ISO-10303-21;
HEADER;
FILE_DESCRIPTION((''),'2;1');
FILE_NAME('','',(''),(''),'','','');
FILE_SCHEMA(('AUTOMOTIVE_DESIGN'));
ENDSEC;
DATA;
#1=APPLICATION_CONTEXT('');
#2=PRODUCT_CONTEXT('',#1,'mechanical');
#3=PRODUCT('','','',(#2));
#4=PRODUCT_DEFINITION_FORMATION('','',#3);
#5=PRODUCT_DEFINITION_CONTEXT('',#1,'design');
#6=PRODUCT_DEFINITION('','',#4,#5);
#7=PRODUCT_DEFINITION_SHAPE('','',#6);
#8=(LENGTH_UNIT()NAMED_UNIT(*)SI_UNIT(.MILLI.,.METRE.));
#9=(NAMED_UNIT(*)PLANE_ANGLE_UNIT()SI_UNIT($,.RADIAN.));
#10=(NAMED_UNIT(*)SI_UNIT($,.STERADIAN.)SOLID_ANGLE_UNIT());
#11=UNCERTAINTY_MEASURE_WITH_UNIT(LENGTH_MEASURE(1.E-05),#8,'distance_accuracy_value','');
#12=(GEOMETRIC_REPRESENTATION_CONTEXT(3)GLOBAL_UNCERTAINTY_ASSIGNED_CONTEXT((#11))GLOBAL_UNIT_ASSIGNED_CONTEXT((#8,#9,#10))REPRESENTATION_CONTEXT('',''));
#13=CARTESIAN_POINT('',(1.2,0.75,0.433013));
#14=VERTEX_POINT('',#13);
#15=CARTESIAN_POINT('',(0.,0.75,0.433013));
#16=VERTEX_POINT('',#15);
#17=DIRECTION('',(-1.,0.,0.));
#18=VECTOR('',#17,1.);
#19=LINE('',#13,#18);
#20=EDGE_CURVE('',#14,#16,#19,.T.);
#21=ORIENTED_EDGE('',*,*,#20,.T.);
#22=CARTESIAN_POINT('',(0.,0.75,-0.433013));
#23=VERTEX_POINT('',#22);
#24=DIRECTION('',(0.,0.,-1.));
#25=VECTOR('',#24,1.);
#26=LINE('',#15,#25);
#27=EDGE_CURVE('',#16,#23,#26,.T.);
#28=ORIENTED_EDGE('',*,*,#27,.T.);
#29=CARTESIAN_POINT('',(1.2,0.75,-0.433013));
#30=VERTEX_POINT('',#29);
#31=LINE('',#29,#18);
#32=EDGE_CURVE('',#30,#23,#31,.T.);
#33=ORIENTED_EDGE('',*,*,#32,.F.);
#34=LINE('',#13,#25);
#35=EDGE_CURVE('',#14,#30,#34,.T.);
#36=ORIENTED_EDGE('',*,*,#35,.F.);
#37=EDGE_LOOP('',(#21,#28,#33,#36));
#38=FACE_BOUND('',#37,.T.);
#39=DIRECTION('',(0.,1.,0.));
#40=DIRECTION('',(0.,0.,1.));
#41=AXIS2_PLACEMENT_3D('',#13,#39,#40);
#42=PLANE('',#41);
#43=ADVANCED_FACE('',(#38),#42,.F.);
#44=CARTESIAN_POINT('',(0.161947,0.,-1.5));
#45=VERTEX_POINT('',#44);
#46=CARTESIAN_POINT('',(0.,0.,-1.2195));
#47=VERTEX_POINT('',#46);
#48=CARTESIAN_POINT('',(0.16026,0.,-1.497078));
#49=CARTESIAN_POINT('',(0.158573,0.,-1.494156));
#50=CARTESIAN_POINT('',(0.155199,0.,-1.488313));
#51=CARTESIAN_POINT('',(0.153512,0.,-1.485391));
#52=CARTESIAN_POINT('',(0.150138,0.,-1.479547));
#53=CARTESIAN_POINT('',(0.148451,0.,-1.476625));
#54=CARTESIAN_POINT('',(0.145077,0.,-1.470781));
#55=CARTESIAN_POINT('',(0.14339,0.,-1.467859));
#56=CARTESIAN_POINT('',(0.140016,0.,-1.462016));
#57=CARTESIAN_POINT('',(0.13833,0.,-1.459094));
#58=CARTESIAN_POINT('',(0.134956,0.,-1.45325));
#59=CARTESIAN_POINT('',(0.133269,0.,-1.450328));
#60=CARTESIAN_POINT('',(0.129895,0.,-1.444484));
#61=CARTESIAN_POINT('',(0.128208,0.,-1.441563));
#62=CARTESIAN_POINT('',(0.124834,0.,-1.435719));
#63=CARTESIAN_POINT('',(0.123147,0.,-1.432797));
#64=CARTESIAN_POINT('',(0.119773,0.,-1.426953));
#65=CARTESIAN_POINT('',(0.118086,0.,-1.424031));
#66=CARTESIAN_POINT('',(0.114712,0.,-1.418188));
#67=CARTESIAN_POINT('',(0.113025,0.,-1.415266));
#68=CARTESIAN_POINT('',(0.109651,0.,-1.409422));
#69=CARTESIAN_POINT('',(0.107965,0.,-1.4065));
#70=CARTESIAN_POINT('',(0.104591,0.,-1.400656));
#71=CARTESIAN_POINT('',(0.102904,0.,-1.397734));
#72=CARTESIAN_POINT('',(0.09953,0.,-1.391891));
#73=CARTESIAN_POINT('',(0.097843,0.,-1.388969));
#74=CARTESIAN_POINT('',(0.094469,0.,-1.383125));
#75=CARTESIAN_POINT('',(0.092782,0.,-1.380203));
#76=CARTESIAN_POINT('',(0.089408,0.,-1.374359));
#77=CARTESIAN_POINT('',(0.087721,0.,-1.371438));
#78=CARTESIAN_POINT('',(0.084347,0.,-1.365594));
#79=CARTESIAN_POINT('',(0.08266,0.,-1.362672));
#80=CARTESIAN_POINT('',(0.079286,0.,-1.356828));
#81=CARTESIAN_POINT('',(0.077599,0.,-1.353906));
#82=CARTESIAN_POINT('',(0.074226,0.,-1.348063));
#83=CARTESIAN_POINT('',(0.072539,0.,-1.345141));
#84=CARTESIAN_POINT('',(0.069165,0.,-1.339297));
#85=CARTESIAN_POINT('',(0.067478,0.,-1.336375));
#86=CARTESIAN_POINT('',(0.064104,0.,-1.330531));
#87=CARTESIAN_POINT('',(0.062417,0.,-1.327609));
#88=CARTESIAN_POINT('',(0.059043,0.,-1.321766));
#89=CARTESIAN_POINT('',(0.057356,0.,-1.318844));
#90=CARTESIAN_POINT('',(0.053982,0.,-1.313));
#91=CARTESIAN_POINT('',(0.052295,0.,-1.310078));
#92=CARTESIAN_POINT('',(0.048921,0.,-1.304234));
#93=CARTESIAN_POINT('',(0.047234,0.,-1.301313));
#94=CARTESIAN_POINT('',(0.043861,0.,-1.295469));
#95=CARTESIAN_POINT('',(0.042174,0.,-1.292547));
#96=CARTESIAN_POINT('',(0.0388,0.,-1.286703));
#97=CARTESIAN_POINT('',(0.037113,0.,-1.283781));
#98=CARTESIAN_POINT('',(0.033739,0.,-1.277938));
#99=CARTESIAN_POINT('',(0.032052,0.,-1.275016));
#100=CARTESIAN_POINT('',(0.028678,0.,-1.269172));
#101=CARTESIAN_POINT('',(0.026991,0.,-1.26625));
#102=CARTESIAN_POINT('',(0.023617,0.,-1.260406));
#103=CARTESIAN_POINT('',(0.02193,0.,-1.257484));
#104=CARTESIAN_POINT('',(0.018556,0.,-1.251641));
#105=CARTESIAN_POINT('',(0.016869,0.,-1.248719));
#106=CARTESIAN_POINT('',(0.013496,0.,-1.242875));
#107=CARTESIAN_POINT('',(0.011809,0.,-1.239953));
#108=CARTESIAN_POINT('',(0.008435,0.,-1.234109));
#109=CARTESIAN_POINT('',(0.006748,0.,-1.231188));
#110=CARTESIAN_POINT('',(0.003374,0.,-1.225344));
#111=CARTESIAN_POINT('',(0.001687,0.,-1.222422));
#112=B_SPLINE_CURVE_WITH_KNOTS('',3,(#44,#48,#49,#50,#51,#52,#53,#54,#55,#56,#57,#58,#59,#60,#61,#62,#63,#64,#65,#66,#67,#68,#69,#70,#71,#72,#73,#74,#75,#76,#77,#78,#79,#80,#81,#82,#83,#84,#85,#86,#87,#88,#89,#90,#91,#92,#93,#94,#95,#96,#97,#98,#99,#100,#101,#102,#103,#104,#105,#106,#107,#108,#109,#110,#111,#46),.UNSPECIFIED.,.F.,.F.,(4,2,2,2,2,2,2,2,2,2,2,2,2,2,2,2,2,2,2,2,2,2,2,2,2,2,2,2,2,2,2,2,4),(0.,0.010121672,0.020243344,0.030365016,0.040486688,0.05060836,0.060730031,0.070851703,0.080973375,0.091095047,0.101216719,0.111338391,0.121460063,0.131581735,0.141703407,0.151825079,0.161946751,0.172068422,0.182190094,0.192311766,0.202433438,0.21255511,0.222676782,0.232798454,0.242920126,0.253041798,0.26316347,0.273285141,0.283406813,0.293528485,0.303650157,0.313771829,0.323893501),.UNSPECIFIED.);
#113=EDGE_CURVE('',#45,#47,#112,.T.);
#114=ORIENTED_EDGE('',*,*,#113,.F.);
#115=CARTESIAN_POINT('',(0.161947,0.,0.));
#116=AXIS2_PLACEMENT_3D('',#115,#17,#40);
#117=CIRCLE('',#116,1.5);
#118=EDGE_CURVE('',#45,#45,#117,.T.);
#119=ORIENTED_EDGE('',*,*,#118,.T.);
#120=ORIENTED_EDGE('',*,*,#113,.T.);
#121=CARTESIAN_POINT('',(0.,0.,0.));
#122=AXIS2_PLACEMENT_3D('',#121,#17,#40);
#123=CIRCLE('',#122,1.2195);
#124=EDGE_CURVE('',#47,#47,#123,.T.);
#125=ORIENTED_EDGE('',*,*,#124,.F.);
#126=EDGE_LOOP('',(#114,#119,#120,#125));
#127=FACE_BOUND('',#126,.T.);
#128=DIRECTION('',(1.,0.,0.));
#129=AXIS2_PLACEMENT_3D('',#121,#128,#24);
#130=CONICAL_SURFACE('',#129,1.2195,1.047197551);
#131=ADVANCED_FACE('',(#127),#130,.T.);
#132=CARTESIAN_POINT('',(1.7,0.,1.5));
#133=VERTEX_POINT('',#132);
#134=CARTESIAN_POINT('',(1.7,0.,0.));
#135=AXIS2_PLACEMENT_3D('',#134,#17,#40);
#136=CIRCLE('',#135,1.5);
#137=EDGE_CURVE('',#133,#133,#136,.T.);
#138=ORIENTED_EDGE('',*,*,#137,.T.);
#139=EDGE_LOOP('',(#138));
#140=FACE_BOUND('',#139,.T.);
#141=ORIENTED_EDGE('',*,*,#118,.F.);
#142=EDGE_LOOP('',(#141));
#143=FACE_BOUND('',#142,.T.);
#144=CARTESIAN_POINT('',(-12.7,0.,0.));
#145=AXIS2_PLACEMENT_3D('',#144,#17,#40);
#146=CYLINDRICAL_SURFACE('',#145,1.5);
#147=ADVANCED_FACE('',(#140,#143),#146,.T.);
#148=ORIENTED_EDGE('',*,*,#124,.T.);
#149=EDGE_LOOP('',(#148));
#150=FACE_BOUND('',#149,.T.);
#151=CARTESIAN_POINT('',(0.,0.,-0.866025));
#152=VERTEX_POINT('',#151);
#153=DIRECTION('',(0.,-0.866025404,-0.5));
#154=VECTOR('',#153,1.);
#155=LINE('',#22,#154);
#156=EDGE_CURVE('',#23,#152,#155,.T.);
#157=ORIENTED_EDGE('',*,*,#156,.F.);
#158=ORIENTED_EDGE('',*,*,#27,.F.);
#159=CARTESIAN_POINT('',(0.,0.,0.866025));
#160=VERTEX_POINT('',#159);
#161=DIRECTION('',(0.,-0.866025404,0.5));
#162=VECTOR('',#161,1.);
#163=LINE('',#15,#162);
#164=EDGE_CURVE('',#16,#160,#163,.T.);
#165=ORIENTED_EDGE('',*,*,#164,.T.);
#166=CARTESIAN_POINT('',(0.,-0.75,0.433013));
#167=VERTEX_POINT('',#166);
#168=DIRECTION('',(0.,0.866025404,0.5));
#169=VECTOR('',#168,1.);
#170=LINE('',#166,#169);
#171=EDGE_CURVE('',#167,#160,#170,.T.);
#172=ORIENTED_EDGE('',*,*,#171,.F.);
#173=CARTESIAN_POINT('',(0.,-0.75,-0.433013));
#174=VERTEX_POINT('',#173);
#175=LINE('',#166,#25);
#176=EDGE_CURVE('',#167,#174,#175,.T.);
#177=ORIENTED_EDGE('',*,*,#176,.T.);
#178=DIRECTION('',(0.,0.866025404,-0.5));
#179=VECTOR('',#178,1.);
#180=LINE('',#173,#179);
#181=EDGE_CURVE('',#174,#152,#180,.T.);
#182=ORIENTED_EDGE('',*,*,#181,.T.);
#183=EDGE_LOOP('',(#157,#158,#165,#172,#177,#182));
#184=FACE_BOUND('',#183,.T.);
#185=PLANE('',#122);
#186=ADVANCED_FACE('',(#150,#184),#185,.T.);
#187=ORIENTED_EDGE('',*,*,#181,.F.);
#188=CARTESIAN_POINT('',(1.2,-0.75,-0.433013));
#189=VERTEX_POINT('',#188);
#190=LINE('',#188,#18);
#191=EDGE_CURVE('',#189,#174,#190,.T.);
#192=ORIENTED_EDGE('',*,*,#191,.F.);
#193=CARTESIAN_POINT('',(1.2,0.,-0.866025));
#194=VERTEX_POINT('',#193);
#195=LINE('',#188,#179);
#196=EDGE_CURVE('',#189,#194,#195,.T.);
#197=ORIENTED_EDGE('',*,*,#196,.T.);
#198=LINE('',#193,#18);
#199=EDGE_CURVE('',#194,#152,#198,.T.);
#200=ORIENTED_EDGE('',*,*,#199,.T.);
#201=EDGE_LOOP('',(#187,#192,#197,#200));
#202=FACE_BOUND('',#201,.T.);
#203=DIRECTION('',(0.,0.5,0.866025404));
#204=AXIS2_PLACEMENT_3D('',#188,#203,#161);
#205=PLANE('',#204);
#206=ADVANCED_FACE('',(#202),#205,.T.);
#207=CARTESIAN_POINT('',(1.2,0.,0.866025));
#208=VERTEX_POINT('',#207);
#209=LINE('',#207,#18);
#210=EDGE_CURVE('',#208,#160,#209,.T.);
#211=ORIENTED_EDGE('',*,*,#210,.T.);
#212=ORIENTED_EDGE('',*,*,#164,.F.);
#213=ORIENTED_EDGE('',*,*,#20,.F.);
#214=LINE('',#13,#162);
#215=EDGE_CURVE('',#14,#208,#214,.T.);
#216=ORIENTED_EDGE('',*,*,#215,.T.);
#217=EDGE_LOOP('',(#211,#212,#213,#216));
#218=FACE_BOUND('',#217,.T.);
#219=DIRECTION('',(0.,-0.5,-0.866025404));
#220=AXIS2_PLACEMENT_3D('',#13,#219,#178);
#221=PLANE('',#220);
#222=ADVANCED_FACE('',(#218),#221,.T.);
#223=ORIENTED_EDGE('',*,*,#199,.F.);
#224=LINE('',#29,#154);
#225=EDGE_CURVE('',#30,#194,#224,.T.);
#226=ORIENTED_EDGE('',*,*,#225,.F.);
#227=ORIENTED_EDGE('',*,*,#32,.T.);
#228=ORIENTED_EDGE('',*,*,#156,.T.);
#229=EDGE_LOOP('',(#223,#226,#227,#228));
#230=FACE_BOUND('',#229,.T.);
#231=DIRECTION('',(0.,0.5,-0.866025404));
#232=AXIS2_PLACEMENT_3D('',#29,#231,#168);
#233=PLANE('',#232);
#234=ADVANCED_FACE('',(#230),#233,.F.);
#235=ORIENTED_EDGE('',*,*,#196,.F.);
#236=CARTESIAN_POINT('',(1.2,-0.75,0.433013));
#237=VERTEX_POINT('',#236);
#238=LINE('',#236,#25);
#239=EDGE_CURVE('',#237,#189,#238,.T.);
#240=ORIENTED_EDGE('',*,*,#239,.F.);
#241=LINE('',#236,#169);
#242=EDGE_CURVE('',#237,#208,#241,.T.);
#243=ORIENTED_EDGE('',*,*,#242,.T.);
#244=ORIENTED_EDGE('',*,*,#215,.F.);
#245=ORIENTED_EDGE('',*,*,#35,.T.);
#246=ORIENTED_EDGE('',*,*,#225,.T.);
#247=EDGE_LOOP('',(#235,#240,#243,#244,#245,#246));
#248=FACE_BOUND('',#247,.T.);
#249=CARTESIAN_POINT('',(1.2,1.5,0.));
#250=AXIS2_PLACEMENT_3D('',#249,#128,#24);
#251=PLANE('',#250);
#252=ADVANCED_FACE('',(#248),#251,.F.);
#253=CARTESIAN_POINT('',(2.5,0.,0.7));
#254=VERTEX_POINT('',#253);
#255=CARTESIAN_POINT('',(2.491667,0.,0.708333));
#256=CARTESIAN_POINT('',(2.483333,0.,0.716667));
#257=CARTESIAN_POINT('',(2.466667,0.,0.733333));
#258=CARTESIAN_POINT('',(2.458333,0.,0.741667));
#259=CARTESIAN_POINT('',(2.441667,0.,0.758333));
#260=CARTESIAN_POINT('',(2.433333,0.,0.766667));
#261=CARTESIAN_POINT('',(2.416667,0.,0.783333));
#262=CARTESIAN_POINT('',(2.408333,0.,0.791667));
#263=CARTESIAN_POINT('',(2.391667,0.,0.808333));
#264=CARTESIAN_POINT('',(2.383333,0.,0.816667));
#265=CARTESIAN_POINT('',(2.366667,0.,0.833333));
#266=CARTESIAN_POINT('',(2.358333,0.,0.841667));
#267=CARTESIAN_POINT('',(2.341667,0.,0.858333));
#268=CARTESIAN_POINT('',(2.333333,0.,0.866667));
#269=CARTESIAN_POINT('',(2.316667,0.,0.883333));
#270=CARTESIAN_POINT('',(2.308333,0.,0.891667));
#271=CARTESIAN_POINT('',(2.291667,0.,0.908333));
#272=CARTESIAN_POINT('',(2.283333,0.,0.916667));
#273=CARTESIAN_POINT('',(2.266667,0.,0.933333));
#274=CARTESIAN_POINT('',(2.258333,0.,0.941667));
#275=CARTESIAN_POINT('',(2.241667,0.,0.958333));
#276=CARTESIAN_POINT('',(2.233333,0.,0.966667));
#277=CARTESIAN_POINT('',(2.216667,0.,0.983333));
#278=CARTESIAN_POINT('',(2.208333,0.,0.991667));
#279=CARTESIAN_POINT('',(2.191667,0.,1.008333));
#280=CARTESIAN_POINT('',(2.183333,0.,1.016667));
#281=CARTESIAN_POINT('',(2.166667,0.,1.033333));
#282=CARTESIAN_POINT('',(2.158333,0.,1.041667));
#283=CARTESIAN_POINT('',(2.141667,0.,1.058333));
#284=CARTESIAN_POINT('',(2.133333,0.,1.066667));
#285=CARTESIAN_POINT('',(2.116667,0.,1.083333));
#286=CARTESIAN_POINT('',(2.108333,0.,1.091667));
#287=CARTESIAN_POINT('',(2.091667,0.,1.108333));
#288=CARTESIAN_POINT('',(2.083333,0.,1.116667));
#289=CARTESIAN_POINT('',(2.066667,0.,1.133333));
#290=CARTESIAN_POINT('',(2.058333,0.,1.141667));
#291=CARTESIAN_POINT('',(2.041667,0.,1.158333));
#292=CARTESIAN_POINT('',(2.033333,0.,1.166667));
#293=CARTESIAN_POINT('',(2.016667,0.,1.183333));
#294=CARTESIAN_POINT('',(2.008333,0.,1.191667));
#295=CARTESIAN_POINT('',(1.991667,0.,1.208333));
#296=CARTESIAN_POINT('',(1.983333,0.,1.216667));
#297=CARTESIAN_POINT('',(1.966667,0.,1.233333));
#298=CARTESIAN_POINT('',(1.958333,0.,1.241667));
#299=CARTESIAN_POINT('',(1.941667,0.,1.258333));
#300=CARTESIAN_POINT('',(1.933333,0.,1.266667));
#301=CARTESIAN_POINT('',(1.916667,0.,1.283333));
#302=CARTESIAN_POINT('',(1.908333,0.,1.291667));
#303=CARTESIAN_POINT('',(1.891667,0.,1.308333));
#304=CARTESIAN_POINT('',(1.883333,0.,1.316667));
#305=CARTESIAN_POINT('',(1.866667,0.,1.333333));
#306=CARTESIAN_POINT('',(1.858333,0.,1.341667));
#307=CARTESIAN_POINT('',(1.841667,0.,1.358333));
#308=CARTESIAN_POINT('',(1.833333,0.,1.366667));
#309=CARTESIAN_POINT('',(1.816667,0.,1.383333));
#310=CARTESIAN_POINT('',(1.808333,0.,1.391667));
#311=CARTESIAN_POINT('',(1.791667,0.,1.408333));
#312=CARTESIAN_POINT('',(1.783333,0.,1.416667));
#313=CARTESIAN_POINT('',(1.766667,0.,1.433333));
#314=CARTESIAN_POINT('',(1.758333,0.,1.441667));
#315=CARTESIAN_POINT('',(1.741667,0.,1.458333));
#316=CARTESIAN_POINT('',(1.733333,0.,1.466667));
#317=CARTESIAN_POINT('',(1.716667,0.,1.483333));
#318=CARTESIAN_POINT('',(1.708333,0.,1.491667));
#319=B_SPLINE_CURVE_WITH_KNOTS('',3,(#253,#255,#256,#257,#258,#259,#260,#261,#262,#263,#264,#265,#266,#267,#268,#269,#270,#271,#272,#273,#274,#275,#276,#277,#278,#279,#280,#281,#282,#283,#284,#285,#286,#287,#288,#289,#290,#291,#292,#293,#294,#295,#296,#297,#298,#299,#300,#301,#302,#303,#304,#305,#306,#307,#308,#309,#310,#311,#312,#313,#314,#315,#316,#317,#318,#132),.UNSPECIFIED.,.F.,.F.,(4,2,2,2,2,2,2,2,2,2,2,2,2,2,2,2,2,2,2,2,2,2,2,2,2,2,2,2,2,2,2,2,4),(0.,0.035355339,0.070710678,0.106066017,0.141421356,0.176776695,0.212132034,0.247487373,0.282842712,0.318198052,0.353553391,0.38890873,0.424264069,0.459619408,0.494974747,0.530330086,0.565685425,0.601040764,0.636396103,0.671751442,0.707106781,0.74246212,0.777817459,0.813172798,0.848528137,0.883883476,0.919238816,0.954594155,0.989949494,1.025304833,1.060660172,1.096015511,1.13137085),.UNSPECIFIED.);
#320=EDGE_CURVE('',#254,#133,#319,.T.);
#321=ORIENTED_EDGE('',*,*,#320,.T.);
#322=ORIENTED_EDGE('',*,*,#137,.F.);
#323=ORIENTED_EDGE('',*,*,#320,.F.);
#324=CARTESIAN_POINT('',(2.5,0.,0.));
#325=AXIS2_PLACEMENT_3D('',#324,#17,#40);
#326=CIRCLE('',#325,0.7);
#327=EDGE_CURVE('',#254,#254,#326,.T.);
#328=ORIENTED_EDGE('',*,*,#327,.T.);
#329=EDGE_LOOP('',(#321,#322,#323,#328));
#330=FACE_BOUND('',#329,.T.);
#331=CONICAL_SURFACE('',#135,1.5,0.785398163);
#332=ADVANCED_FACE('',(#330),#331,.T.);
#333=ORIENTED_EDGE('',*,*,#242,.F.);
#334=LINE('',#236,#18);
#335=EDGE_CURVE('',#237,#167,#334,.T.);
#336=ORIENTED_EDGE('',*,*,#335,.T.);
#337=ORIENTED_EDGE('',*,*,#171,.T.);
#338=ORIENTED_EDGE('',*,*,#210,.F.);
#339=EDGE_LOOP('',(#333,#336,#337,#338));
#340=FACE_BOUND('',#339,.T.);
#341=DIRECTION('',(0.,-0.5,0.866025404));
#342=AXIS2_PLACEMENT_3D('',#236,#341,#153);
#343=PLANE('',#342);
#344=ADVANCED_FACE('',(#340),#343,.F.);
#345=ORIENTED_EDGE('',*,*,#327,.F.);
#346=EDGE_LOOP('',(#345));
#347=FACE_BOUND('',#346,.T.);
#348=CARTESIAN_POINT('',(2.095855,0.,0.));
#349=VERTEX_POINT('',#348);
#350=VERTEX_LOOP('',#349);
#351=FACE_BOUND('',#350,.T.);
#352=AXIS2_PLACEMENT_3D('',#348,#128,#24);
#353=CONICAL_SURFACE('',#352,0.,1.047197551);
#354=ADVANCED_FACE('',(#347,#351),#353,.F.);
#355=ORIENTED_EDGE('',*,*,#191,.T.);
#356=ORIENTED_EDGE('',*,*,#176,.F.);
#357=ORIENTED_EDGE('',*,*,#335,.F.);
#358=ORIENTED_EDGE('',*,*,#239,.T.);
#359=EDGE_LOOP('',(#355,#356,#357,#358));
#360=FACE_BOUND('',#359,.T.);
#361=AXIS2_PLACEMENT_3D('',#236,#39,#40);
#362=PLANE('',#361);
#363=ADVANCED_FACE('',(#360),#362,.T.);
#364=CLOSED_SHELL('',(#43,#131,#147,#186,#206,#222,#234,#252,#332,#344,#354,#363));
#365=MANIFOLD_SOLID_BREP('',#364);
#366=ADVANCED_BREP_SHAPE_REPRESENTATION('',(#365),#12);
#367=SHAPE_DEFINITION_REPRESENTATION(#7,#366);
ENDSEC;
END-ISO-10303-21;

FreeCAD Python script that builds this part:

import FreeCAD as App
import Part
import Sketcher
from FreeCAD import Vector
Q = App.Units.Quantity

doc = App.newDocument("Part")
params = doc.addObject("Spreadsheet::Sheet", "Params")
for row, (alias, value) in enumerate([
    ("revolution_angle", "360 deg"),
    ("pocket1_length", "1.2 mm"),
], start=1):
    params.set(f"A{row}", alias)
    params.set(f"B{row}", "=" + value)
    params.setAlias(f"B{row}", alias)

body = doc.addObject("PartDesign::Body", "Body")

# Sketch on XY plane
sketch1 = doc.addObject("Sketcher::SketchObject", "Sketch")
body.addObject(sketch1)
sketch1.AttachmentSupport = (doc.XY_Plane, [""])
sketch1.MapMode = "FlatFace"
sketch1.addGeometry(Part.LineSegment(Vector(0, 1.2195, 0), Vector(0, 0, 0)), False)
sketch1.addGeometry(Part.LineSegment(Vector(0, 0, 0), Vector(2.095855, 0, 0)), False)
sketch1.addGeometry(Part.LineSegment(Vector(2.095855, 0, 0), Vector(2.5, 0.7, 0)), False)
sketch1.addGeometry(Part.LineSegment(Vector(2.5, 0.7, 0), Vector(1.7, 1.5, 0)), False)
sketch1.addGeometry(Part.LineSegment(Vector(1.7, 1.5, 0), Vector(0.161947, 1.5, 0)), False)
sketch1.addGeometry(Part.LineSegment(Vector(0.161947, 1.5, 0), Vector(0, 1.2195, 0)), False)
sketch1.addConstraint(Sketcher.Constraint("Coincident", 0, 2, 1, 1))
sketch1.addConstraint(Sketcher.Constraint("Coincident", 1, 2, 2, 1))
sketch1.addConstraint(Sketcher.Constraint("Coincident", 2, 2, 3, 1))
sketch1.addConstraint(Sketcher.Constraint("Coincident", 3, 2, 4, 1))
sketch1.addConstraint(Sketcher.Constraint("Coincident", 4, 2, 5, 1))
sketch1.addConstraint(Sketcher.Constraint("Coincident", 5, 2, 0, 1))
sketch1.addConstraint(Sketcher.Constraint("Vertical", 0))
sketch1.addConstraint(Sketcher.Constraint("Horizontal", 1))
sketch1.addConstraint(Sketcher.Constraint("Horizontal", 4))
sketch1.addConstraint(Sketcher.Constraint("Coincident", 0, 2, -1, 1))
sketch1.addConstraint(Sketcher.Constraint("Parallel", 2, 5))
sketch1.addConstraint(Sketcher.Constraint("Angle", 2, Q("60 deg")))
sketch1.addConstraint(Sketcher.Constraint("Angle", 3, Q("135 deg")))
sketch1.addConstraint(Sketcher.Constraint("DistanceX", -1, 1, 2, 2, 2.5))
sketch1.addConstraint(Sketcher.Constraint("DistanceY", -1, 1, 2, 2, 0.7))
sketch1.addConstraint(Sketcher.Constraint("DistanceX", -1, 1, 3, 2, 1.7))
sketch1.addConstraint(Sketcher.Constraint("DistanceY", 0, 2, 0, 1, 1.2195))
revolution = doc.addObject("PartDesign::Revolution", "Revolution")
body.addObject(revolution)
revolution.Profile = sketch1
revolution.ReferenceAxis = (sketch1, ["H_Axis"])
revolution.setExpression("Angle", "Params.revolution_angle")

# Sketch on YZ plane
sketch2 = doc.addObject("Sketcher::SketchObject", "Sketch001")
body.addObject(sketch2)
sketch2.AttachmentSupport = (doc.YZ_Plane, [""])
sketch2.MapMode = "FlatFace"
sketch2.addGeometry(Part.LineSegment(Vector(0.75, 0.433013, 0), Vector(0.75, -0.433013, 0)), False)
sketch2.addGeometry(Part.LineSegment(Vector(0.75, -0.433013, 0), Vector(0, -0.866025, 0)), False)
sketch2.addGeometry(Part.LineSegment(Vector(0, -0.866025, 0), Vector(-0.75, -0.433013, 0)), False)
sketch2.addGeometry(Part.LineSegment(Vector(-0.75, -0.433013, 0), Vector(-0.75, 0.433013, 0)), False)
sketch2.addGeometry(Part.LineSegment(Vector(-0.75, 0.433013, 0), Vector(0, 0.866025, 0)), False)
sketch2.addGeometry(Part.LineSegment(Vector(0, 0.866025, 0), Vector(0.75, 0.433013, 0)), False)
sketch2.addConstraint(Sketcher.Constraint("Coincident", 0, 2, 1, 1))
sketch2.addConstraint(Sketcher.Constraint("Coincident", 1, 2, 2, 1))
sketch2.addConstraint(Sketcher.Constraint("Coincident", 2, 2, 3, 1))
sketch2.addConstraint(Sketcher.Constraint("Coincident", 3, 2, 4, 1))
sketch2.addConstraint(Sketcher.Constraint("Coincident", 4, 2, 5, 1))
sketch2.addConstraint(Sketcher.Constraint("Coincident", 5, 2, 0, 1))
sketch2.addConstraint(Sketcher.Constraint("Vertical", 0))
sketch2.addConstraint(Sketcher.Constraint("Vertical", 3))
sketch2.addConstraint(Sketcher.Constraint("Symmetric", 0, 2, 3, 2, -1, 1))
sketch2.addConstraint(Sketcher.Constraint("Symmetric", 1, 2, 4, 2, -1, 1))
sketch2.addConstraint(Sketcher.Constraint("PointOnObject", 1, 2, -2))
sketch2.addConstraint(Sketcher.Constraint("Parallel", 2, 5))
sketch2.addConstraint(Sketcher.Constraint("Horizontal", 0, 2, 2, 2))
sketch2.addConstraint(Sketcher.Constraint("Angle", 1, Q("-150 deg")))
sketch2.addConstraint(Sketcher.Constraint("DistanceX", 2, 2, 0, 2, 1.5))
sketch2.addConstraint(Sketcher.Constraint("DistanceY", 0, 2, 0, 1, 0.866025))
pocket1 = doc.addObject("PartDesign::Pocket", "Pocket")
body.addObject(pocket1)
pocket1.Profile = sketch2
pocket1.setExpression("Length", "Params.pocket1_length")
pocket1.Reversed = True

doc.recompute()
